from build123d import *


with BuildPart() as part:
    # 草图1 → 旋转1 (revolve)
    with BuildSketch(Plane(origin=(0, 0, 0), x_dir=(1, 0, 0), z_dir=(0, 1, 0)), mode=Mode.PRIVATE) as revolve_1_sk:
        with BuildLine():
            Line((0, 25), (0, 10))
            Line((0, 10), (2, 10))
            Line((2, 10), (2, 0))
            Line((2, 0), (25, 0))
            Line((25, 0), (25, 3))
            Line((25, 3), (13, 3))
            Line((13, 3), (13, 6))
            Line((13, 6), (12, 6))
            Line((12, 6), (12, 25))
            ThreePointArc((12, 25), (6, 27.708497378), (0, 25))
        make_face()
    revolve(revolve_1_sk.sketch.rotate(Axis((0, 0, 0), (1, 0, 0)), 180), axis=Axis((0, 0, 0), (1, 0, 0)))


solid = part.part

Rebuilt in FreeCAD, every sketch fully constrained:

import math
import FreeCAD as App
import Part
import Sketcher

V = App.Vector
Q = App.Units.Quantity

doc = App.newDocument("Part")
params = doc.addObject("Spreadsheet::Sheet", "Params")
for row, (alias, value) in enumerate([
    ("sketch1_radius", "8 mm"),
    ("sketch1_width", "2 mm"),
    ("sketch1_width2", "23 mm"),
    ("sketch1_width3", "12 mm"),
    ("sketch1_width4", "1 mm"),
    ("revolution_angle", "360 deg"),
], start=1):
    params.set(f"A{row}", alias)
    params.set(f"B{row}", "=" + value)
    params.setAlias(f"B{row}", alias)

body = doc.addObject("PartDesign::Body", "Body")

# Sketch on XZ plane
sketch1 = body.newObject("Sketcher::SketchObject", "Sketch")
sketch1.AttachmentSupport = (doc.getObject("XZ_Plane"), [""])
sketch1.MapMode = "FlatFace"
sketch1.addGeometry(Part.LineSegment(V(0, -25, 0), V(0, -10, 0)), False)
sketch1.addGeometry(Part.LineSegment(V(0, -10, 0), V(2, -10, 0)), False)
sketch1.addGeometry(Part.LineSegment(V(2, -10, 0), V(2, 0, 0)), False)
sketch1.addGeometry(Part.LineSegment(V(2, 0, 0), V(25, 0, 0)), False)
sketch1.addGeometry(Part.LineSegment(V(25, 0, 0), V(25, -3, 0)), False)
sketch1.addGeometry(Part.LineSegment(V(25, -3, 0), V(13, -3, 0)), False)
sketch1.addGeometry(Part.LineSegment(V(13, -3, 0), V(13, -6, 0)), False)
sketch1.addGeometry(Part.LineSegment(V(13, -6, 0), V(12, -6, 0)), False)
sketch1.addGeometry(Part.LineSegment(V(12, -6, 0), V(12, -25, 0)), False)
sketch1.addGeometry(Part.ArcOfCircle(Part.Circle(V(6, -19.708497, 0), V(0, 0, 1), 8), math.radians(-138.590378), math.radians(-41.409622)), False)
sketch1.addConstraint(Sketcher.Constraint("Coincident", 0, 2, 1, 1))
sketch1.addConstraint(Sketcher.Constraint("Coincident", 1, 2, 2, 1))
sketch1.addConstraint(Sketcher.Constraint("Coincident", 2, 2, 3, 1))
sketch1.addConstraint(Sketcher.Constraint("Coincident", 3, 2, 4, 1))
sketch1.addConstraint(Sketcher.Constraint("Coincident", 4, 2, 5, 1))
sketch1.addConstraint(Sketcher.Constraint("Coincident", 5, 2, 6, 1))
sketch1.addConstraint(Sketcher.Constraint("Coincident", 6, 2, 7, 1))
sketch1.addConstraint(Sketcher.Constraint("Coincident", 7, 2, 8, 1))
sketch1.addConstraint(Sketcher.Constraint("Coincident", 8, 2, 9, 2))
sketch1.addConstraint(Sketcher.Constraint("Coincident", 9, 1, 0, 1))
sketch1.addConstraint(Sketcher.Constraint("Vertical", 0))
sketch1.addConstraint(Sketcher.Constraint("Horizontal", 1))
sketch1.addConstraint(Sketcher.Constraint("Vertical", 2))
sketch1.addConstraint(Sketcher.Constraint("Horizontal", 3))
sketch1.addConstraint(Sketcher.Constraint("Vertical", 4))
sketch1.addConstraint(Sketcher.Constraint("Horizontal", 5))
sketch1.addConstraint(Sketcher.Constraint("Vertical", 6))
sketch1.addConstraint(Sketcher.Constraint("Horizontal", 7))
sketch1.addConstraint(Sketcher.Constraint("Vertical", 8))
sketch1.addConstraint(Sketcher.Constraint("PointOnObject", 0, 2, -2))
sketch1.addConstraint(Sketcher.Constraint("PointOnObject", 2, 2, -1))
sketch1.addConstraint(Sketcher.Constraint("Horizontal", 8, 2, 9, 1))
sketch1.addConstraint(Sketcher.Constraint("Equal", 4, 6))
sketch1.addConstraint(Sketcher.Constraint("Radius", 9, Q("8 mm")))
sketch1.addConstraint(Sketcher.Constraint("DistanceX", 1, 1, 1, 2, Q("2 mm")))
sketch1.addConstraint(Sketcher.Constraint("DistanceX", 3, 1, 3, 2, Q("23 mm")))
sketch1.addConstraint(Sketcher.Constraint("DistanceX", 5, 2, 5, 1, Q("12 mm")))
sketch1.addConstraint(Sketcher.Constraint("DistanceX", 7, 2, 7, 1, Q("1 mm")))
sketch1.addConstraint(Sketcher.Constraint("DistanceY", 0, 1, 0, 2, Q("15 mm")))
sketch1.addConstraint(Sketcher.Constraint("DistanceY", 2, 1, 2, 2, Q("10 mm")))
sketch1.addConstraint(Sketcher.Constraint("DistanceY", 4, 2, 4, 1, Q("3 mm")))
sketch1.setExpression("Constraints[23]", "Params.sketch1_radius")
sketch1.setExpression("Constraints[24]", "Params.sketch1_width")
sketch1.setExpression("Constraints[25]", "Params.sketch1_width2")
sketch1.setExpression("Constraints[26]", "Params.sketch1_width3")
sketch1.setExpression("Constraints[27]", "Params.sketch1_width4")
revolution = body.newObject("PartDesign::Revolution", "Revolution")
revolution.Profile = sketch1
revolution.ReferenceAxis = (sketch1, ["H_Axis"])
revolution.setExpression("Angle", "Params.revolution_angle")

doc.recompute()
